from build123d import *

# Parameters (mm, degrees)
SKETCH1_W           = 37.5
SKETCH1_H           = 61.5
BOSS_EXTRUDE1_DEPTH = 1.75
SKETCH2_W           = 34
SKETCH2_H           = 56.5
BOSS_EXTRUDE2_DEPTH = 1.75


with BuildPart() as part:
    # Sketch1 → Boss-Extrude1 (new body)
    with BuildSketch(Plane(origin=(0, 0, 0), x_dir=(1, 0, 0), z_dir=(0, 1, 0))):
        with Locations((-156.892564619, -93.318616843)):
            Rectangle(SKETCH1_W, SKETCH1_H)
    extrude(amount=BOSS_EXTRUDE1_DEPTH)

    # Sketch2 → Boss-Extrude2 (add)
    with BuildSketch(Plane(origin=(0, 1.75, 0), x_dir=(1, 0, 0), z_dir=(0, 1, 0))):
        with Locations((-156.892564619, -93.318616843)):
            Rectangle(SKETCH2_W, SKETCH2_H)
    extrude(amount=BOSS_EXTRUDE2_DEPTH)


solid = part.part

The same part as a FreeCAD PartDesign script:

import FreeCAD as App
import Part
import Sketcher


def add_polygon(sketch, points):
    """Adds a closed chain of lines whose ends are joined by coincident constraints."""
    first, n = sketch.GeometryCount, len(points)
    for a, b in zip(points, points[1:] + points[:1]):
        sketch.addGeometry(Part.LineSegment(App.Vector(*a, 0), App.Vector(*b, 0)), False)
    for i in range(n):
        sketch.addConstraint(Sketcher.Constraint("Coincident", first + i, 2, first + (i + 1) % n, 1))

doc = App.newDocument("Part")
params = doc.addObject("Spreadsheet::Sheet", "Params")
for row, (alias, value) in enumerate([
    ("sketch1_width", "37.5 mm"),
    ("sketch1_height", "61.5 mm"),
    ("pad1_length", "1.75 mm"),
    ("sketch2_width", "34 mm"),
    ("sketch2_height", "56.5 mm"),
    ("pad2_length", "1.75 mm"),
], start=1):
    params.set(f"A{row}", alias)
    params.set(f"B{row}", "=" + value)
    params.setAlias(f"B{row}", alias)

body = doc.addObject("PartDesign::Body", "Body")

sketch1 = doc.addObject("Sketcher::SketchObject", "Sketch")
body.addObject(sketch1)
sketch1.AttachmentSupport = (doc.XZ_Plane, [""])
sketch1.MapMode = "FlatFace"
add_polygon(sketch1, [(-176, 63), (-176, 124), (-138, 124), (-138, 63)])
sketch1.addConstraint(Sketcher.Constraint("Vertical", 0))
sketch1.addConstraint(Sketcher.Constraint("Horizontal", 1))
sketch1.addConstraint(Sketcher.Constraint("Vertical", 2))
sketch1.addConstraint(Sketcher.Constraint("Horizontal", 3))
sketch1.addConstraint(Sketcher.Constraint("DistanceX", 1, 1, 1, 2, 37.5))
sketch1.addConstraint(Sketcher.Constraint("DistanceY", 0, 1, 0, 2, 61.5))
sketch1.addConstraint(Sketcher.Constraint("DistanceX", 0, 2, -1, 1, 175.642565))
sketch1.addConstraint(Sketcher.Constraint("DistanceY", -1, 1, 0, 2, 124.068617))
sketch1.setExpression("Constraints[8]", "Params.sketch1_width")
sketch1.setExpression("Constraints[9]", "Params.sketch1_height")
pad1 = doc.addObject("PartDesign::Pad", "Pad")
body.addObject(pad1)
pad1.Profile = sketch1
pad1.setExpression("Length", "Params.pad1_length")
pad1.Reversed = True

sketch2 = doc.addObject("Sketcher::SketchObject", "Sketch001")
body.addObject(sketch2)
sketch2.AttachmentSupport = (doc.XZ_Plane, [""])
sketch2.MapMode = "FlatFace"
sketch2.AttachmentOffset = App.Placement(App.Vector(0, 0, -1.75), App.Rotation())
add_polygon(sketch2, [(-174, 65), (-174, 122), (-140, 122), (-140, 65)])
sketch2.addConstraint(Sketcher.Constraint("Vertical", 0))
sketch2.addConstraint(Sketcher.Constraint("Horizontal", 1))
sketch2.addConstraint(Sketcher.Constraint("Vertical", 2))
sketch2.addConstraint(Sketcher.Constraint("Horizontal", 3))
sketch2.addConstraint(Sketcher.Constraint("DistanceX", 1, 1, 1, 2, 34.0))
sketch2.addConstraint(Sketcher.Constraint("DistanceY", 0, 1, 0, 2, 56.5))
sketch2.addConstraint(Sketcher.Constraint("DistanceX", 0, 2, -1, 1, 173.892565))
sketch2.addConstraint(Sketcher.Constraint("DistanceY", -1, 1, 0, 2, 121.568617))
sketch2.setExpression("Constraints[8]", "Params.sketch2_width")
sketch2.setExpression("Constraints[9]", "Params.sketch2_height")
pad2 = doc.addObject("PartDesign::Pad", "Pad001")
body.addObject(pad2)
pad2.Profile = sketch2
pad2.setExpression("Length", "Params.pad2_length")
pad2.Reversed = True

doc.recompute()
